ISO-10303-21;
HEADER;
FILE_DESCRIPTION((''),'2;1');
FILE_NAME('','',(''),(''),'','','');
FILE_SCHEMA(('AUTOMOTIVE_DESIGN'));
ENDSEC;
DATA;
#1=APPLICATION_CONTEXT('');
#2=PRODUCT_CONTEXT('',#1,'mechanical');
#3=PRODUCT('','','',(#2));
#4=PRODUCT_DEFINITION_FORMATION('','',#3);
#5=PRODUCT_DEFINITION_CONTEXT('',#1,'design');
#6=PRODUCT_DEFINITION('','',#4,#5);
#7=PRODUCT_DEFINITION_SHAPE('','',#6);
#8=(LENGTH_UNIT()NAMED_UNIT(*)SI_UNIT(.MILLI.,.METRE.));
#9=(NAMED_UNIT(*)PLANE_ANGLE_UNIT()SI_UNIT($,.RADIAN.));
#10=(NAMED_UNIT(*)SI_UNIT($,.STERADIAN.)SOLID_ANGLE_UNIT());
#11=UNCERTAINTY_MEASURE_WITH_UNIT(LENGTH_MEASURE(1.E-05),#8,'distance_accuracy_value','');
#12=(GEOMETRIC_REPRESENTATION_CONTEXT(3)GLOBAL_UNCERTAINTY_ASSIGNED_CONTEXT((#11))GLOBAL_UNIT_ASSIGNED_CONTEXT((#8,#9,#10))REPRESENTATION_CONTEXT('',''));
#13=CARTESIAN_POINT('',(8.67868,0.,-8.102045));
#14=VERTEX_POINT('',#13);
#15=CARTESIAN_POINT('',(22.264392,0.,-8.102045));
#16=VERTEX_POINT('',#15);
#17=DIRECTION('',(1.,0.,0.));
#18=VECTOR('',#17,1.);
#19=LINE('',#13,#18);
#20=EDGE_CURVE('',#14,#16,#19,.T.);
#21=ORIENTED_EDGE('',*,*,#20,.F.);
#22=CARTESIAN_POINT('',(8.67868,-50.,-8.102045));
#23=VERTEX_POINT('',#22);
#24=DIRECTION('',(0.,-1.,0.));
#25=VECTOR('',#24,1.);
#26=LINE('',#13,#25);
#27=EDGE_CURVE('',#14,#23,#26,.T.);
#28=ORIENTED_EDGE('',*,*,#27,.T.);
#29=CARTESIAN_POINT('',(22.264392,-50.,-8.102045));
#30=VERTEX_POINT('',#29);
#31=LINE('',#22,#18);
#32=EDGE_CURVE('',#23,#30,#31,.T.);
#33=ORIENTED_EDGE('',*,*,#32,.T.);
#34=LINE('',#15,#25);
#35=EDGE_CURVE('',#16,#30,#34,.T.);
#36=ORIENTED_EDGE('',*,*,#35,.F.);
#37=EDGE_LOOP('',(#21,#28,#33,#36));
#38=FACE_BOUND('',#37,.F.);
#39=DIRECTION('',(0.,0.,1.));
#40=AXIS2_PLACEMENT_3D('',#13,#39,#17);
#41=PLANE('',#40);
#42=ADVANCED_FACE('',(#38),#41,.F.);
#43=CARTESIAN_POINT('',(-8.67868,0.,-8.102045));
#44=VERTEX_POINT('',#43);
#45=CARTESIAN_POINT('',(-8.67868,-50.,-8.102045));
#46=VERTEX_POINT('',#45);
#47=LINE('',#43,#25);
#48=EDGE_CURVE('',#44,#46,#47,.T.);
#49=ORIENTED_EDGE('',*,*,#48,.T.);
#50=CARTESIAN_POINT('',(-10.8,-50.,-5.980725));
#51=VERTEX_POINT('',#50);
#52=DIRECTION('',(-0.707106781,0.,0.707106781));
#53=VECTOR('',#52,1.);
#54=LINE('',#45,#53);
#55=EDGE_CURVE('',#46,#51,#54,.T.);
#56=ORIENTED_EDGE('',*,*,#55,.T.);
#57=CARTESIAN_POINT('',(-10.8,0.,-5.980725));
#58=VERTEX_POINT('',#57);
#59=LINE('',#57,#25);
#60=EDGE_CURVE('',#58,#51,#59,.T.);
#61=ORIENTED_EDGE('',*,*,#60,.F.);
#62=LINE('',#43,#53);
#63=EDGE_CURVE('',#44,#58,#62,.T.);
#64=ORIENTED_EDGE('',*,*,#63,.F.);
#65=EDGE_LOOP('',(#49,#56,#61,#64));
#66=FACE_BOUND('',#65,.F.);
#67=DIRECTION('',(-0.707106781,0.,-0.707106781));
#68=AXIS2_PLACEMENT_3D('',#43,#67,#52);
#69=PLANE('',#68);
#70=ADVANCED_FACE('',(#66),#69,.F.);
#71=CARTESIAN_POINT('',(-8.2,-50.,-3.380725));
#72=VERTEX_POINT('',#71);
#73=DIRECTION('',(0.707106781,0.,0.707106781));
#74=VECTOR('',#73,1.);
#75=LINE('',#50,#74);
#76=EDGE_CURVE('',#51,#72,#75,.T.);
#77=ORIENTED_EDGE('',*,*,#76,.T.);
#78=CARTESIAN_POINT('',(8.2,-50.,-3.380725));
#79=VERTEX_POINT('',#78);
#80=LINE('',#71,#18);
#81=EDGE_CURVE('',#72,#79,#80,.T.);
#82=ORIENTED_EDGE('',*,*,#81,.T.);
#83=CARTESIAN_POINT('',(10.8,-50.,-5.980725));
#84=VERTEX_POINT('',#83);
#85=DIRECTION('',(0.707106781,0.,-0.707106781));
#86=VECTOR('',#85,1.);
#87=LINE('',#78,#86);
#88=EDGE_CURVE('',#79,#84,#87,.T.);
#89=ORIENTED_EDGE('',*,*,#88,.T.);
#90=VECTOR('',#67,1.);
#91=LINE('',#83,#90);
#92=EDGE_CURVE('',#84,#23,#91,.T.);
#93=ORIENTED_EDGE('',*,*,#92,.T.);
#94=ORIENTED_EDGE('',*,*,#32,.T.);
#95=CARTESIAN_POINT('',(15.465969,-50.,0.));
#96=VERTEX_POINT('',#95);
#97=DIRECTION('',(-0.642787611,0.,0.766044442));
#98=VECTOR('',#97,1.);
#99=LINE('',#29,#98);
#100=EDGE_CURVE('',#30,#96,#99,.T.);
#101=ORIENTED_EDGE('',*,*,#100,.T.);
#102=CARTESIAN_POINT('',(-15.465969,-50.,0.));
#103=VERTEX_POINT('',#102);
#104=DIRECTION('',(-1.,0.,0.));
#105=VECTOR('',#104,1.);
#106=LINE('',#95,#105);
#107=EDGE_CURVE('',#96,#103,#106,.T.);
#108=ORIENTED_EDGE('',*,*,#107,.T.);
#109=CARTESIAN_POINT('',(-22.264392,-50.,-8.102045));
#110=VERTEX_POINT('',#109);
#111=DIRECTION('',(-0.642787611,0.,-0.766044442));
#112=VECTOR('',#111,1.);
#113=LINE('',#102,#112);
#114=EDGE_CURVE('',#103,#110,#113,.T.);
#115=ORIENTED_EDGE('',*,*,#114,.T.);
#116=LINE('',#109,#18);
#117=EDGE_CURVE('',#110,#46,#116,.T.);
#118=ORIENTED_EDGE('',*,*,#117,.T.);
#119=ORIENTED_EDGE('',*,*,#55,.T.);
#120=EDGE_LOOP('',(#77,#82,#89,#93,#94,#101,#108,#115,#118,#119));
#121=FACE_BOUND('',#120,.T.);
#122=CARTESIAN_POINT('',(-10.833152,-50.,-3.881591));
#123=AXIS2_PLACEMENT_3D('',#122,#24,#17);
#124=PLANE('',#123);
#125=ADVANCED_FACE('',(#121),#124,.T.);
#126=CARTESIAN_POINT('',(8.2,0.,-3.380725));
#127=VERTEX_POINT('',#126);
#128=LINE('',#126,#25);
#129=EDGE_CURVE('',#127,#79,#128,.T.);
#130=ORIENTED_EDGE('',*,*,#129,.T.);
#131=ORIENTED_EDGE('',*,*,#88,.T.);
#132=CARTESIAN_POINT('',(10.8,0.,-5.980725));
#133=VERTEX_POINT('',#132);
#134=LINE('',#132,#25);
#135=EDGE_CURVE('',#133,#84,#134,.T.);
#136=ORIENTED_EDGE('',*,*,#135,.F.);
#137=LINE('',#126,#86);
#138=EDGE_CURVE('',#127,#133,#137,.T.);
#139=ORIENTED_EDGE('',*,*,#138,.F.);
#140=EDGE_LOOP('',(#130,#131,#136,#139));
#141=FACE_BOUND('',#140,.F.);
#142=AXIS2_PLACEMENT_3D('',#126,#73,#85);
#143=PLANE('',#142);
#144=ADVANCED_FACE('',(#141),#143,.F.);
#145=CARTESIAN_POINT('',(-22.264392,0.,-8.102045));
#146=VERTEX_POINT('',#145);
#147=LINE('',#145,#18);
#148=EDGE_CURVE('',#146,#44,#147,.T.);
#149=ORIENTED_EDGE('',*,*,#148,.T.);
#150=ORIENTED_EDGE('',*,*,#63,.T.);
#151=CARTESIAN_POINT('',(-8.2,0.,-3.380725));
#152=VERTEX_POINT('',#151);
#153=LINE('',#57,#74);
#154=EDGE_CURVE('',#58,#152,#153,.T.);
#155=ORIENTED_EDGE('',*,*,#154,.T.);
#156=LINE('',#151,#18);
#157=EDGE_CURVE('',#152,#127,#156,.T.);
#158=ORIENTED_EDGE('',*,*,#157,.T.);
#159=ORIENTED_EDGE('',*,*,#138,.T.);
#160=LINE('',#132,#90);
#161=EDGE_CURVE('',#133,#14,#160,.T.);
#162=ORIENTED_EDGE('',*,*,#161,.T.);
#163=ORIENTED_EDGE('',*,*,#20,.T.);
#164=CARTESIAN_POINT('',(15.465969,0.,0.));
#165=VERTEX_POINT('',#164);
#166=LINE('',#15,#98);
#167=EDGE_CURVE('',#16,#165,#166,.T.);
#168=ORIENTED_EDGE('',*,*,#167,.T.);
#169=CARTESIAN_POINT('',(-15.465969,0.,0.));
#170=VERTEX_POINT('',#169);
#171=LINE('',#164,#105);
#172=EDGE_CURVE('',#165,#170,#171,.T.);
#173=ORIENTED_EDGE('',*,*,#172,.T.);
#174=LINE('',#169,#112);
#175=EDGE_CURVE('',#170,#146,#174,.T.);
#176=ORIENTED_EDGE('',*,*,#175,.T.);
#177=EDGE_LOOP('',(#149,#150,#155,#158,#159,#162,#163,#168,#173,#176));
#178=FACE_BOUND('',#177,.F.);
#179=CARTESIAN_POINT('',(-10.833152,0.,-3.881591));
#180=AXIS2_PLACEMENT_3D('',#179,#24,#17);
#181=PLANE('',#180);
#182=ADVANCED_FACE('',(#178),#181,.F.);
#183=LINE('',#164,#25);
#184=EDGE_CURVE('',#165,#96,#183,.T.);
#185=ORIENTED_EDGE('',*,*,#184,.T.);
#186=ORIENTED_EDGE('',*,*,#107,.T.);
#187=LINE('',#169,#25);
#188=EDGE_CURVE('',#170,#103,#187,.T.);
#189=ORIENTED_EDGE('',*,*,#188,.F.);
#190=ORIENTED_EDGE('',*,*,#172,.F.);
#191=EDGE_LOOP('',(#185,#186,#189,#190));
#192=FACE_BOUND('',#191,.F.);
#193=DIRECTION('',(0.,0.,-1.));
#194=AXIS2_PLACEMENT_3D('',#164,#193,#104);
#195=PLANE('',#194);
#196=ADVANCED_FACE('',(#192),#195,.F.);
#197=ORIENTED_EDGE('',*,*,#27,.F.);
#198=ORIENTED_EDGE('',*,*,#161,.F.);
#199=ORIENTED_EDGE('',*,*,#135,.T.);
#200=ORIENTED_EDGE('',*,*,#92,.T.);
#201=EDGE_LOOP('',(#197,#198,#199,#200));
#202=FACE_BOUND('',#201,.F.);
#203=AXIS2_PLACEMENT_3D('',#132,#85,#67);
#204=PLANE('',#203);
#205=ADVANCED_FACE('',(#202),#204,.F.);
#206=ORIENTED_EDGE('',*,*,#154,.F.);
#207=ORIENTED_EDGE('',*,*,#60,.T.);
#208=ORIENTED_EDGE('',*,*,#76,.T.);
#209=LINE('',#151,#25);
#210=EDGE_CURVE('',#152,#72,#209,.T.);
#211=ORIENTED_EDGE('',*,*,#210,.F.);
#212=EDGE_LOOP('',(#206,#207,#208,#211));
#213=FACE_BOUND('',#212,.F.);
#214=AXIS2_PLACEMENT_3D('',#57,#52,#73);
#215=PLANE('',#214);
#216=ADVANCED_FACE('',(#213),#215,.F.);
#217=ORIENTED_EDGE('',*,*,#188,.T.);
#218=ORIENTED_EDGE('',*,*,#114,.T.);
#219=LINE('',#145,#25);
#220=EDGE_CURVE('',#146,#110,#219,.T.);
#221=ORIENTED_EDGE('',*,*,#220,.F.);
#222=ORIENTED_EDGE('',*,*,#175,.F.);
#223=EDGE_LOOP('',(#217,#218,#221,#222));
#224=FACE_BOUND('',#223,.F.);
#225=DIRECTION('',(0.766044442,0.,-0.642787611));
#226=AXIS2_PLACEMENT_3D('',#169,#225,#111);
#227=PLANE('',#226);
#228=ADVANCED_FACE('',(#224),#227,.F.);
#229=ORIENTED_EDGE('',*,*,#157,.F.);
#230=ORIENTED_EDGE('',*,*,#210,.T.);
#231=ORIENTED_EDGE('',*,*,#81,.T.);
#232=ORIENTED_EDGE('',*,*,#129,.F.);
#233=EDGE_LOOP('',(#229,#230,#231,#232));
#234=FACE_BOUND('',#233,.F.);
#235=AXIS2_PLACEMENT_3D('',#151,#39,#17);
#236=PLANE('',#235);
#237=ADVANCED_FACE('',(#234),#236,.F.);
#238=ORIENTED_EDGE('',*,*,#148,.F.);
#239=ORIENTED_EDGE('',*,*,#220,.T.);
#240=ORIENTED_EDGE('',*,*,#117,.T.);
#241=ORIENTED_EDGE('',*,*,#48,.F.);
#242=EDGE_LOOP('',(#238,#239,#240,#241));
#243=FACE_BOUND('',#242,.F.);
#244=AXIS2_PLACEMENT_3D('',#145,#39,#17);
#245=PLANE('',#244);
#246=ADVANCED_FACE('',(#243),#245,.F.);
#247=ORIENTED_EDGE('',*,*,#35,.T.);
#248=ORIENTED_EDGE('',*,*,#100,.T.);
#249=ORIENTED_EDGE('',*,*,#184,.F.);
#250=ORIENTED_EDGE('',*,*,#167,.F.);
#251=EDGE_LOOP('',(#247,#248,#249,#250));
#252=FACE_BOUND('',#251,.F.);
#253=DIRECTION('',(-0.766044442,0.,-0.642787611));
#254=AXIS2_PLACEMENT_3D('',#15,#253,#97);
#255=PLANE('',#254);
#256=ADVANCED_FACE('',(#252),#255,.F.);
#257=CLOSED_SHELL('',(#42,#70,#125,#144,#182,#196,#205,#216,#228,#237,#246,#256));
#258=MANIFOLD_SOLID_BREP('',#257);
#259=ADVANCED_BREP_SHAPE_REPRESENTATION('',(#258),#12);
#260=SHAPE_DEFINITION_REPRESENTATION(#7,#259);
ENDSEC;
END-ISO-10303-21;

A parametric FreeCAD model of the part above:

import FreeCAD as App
import Part
import Sketcher

V = App.Vector
Q = App.Units.Quantity

doc = App.newDocument("Part")
params = doc.addObject("Spreadsheet::Sheet", "Params")
for row, (alias, value) in enumerate([
    ("sketch1_length", "3 mm"),
    ("sketch1_width", "16.4 mm"),
    ("pad1_length", "50 mm"),
], start=1):
    params.set(f"A{row}", alias)
    params.set(f"B{row}", "=" + value)
    params.setAlias(f"B{row}", alias)

body = doc.addObject("PartDesign::Body", "Body")

sketch1 = body.newObject("Sketcher::SketchObject", "Sketch")
sketch1.AttachmentSupport = (doc.getObject("XZ_Plane"), [""])
sketch1.MapMode = "FlatFace"
sketch1.addGeometry([
    Part.LineSegment(V(-10.8, -5.980725, 0), V(-8.2, -3.380725, 0)),
    Part.LineSegment(V(-8.2, -3.380725, 0), V(8.2, -3.380725, 0)),
    Part.LineSegment(V(8.2, -3.380725, 0), V(10.8, -5.980725, 0)),
    Part.LineSegment(V(10.8, -5.980725, 0), V(8.67868, -8.102045, 0)),
    Part.LineSegment(V(8.67868, -8.102045, 0), V(22.264392, -8.102045, 0)),
    Part.LineSegment(V(22.264392, -8.102045, 0), V(15.465969, 0, 0)),
    Part.LineSegment(V(15.465969, 0, 0), V(-15.465969, 0, 0)),
    Part.LineSegment(V(-15.465969, 0, 0), V(-22.264392, -8.102045, 0)),
    Part.LineSegment(V(-22.264392, -8.102045, 0), V(-8.67868, -8.102045, 0)),
    Part.LineSegment(V(-8.67868, -8.102045, 0), V(-10.8, -5.980725, 0)),
], False)
sketch1.addConstraint([
    Sketcher.Constraint("Coincident", 0, 2, 1, 1),
    Sketcher.Constraint("Coincident", 1, 2, 2, 1),
    Sketcher.Constraint("Coincident", 2, 2, 3, 1),
    Sketcher.Constraint("Coincident", 3, 2, 4, 1),
    Sketcher.Constraint("Coincident", 4, 2, 5, 1),
    Sketcher.Constraint("Coincident", 5, 2, 6, 1),
    Sketcher.Constraint("Coincident", 6, 2, 7, 1),
    Sketcher.Constraint("Coincident", 7, 2, 8, 1),
    Sketcher.Constraint("Coincident", 8, 2, 9, 1),
    Sketcher.Constraint("Coincident", 9, 2, 0, 1),
    Sketcher.Constraint("Horizontal", 1),
    Sketcher.Constraint("Horizontal", 4),
    Sketcher.Constraint("Horizontal", 6),
    Sketcher.Constraint("Horizontal", 8),
    Sketcher.Constraint("Symmetric", 5, 2, 6, 2, -1, 1),
    Sketcher.Constraint("Symmetric", 4, 2, 7, 2, -2),
    Sketcher.Constraint("Symmetric", 2, 2, 9, 2, -2),
    Sketcher.Constraint("Perpendicular", 0, 2),
    Sketcher.Constraint("Perpendicular", 2, 3),
    Sketcher.Constraint("Perpendicular", 3, 9),
    Sketcher.Constraint("Equal", 4, 8),
    Sketcher.Constraint("Angle", 5, Q("130 deg")),
    Sketcher.Constraint("Distance", 3, 3.0),
    Sketcher.Constraint("DistanceX", 1, 1, 1, 2, 16.4),
    Sketcher.Constraint("DistanceX", 0, 2, 2, 2, 19.0),
    Sketcher.Constraint("Distance", 5, 10.576469),
    Sketcher.Constraint("DistanceX", 4, 1, 4, 2, 13.585712),
])
sketch1.setExpression("Constraints[22]", "Params.sketch1_length")
sketch1.setExpression("Constraints[23]", "Params.sketch1_width")
pad1 = body.newObject("PartDesign::Pad", "Pad")
pad1.Profile = sketch1
pad1.setExpression("Length", "Params.pad1_length")

doc.recompute()
